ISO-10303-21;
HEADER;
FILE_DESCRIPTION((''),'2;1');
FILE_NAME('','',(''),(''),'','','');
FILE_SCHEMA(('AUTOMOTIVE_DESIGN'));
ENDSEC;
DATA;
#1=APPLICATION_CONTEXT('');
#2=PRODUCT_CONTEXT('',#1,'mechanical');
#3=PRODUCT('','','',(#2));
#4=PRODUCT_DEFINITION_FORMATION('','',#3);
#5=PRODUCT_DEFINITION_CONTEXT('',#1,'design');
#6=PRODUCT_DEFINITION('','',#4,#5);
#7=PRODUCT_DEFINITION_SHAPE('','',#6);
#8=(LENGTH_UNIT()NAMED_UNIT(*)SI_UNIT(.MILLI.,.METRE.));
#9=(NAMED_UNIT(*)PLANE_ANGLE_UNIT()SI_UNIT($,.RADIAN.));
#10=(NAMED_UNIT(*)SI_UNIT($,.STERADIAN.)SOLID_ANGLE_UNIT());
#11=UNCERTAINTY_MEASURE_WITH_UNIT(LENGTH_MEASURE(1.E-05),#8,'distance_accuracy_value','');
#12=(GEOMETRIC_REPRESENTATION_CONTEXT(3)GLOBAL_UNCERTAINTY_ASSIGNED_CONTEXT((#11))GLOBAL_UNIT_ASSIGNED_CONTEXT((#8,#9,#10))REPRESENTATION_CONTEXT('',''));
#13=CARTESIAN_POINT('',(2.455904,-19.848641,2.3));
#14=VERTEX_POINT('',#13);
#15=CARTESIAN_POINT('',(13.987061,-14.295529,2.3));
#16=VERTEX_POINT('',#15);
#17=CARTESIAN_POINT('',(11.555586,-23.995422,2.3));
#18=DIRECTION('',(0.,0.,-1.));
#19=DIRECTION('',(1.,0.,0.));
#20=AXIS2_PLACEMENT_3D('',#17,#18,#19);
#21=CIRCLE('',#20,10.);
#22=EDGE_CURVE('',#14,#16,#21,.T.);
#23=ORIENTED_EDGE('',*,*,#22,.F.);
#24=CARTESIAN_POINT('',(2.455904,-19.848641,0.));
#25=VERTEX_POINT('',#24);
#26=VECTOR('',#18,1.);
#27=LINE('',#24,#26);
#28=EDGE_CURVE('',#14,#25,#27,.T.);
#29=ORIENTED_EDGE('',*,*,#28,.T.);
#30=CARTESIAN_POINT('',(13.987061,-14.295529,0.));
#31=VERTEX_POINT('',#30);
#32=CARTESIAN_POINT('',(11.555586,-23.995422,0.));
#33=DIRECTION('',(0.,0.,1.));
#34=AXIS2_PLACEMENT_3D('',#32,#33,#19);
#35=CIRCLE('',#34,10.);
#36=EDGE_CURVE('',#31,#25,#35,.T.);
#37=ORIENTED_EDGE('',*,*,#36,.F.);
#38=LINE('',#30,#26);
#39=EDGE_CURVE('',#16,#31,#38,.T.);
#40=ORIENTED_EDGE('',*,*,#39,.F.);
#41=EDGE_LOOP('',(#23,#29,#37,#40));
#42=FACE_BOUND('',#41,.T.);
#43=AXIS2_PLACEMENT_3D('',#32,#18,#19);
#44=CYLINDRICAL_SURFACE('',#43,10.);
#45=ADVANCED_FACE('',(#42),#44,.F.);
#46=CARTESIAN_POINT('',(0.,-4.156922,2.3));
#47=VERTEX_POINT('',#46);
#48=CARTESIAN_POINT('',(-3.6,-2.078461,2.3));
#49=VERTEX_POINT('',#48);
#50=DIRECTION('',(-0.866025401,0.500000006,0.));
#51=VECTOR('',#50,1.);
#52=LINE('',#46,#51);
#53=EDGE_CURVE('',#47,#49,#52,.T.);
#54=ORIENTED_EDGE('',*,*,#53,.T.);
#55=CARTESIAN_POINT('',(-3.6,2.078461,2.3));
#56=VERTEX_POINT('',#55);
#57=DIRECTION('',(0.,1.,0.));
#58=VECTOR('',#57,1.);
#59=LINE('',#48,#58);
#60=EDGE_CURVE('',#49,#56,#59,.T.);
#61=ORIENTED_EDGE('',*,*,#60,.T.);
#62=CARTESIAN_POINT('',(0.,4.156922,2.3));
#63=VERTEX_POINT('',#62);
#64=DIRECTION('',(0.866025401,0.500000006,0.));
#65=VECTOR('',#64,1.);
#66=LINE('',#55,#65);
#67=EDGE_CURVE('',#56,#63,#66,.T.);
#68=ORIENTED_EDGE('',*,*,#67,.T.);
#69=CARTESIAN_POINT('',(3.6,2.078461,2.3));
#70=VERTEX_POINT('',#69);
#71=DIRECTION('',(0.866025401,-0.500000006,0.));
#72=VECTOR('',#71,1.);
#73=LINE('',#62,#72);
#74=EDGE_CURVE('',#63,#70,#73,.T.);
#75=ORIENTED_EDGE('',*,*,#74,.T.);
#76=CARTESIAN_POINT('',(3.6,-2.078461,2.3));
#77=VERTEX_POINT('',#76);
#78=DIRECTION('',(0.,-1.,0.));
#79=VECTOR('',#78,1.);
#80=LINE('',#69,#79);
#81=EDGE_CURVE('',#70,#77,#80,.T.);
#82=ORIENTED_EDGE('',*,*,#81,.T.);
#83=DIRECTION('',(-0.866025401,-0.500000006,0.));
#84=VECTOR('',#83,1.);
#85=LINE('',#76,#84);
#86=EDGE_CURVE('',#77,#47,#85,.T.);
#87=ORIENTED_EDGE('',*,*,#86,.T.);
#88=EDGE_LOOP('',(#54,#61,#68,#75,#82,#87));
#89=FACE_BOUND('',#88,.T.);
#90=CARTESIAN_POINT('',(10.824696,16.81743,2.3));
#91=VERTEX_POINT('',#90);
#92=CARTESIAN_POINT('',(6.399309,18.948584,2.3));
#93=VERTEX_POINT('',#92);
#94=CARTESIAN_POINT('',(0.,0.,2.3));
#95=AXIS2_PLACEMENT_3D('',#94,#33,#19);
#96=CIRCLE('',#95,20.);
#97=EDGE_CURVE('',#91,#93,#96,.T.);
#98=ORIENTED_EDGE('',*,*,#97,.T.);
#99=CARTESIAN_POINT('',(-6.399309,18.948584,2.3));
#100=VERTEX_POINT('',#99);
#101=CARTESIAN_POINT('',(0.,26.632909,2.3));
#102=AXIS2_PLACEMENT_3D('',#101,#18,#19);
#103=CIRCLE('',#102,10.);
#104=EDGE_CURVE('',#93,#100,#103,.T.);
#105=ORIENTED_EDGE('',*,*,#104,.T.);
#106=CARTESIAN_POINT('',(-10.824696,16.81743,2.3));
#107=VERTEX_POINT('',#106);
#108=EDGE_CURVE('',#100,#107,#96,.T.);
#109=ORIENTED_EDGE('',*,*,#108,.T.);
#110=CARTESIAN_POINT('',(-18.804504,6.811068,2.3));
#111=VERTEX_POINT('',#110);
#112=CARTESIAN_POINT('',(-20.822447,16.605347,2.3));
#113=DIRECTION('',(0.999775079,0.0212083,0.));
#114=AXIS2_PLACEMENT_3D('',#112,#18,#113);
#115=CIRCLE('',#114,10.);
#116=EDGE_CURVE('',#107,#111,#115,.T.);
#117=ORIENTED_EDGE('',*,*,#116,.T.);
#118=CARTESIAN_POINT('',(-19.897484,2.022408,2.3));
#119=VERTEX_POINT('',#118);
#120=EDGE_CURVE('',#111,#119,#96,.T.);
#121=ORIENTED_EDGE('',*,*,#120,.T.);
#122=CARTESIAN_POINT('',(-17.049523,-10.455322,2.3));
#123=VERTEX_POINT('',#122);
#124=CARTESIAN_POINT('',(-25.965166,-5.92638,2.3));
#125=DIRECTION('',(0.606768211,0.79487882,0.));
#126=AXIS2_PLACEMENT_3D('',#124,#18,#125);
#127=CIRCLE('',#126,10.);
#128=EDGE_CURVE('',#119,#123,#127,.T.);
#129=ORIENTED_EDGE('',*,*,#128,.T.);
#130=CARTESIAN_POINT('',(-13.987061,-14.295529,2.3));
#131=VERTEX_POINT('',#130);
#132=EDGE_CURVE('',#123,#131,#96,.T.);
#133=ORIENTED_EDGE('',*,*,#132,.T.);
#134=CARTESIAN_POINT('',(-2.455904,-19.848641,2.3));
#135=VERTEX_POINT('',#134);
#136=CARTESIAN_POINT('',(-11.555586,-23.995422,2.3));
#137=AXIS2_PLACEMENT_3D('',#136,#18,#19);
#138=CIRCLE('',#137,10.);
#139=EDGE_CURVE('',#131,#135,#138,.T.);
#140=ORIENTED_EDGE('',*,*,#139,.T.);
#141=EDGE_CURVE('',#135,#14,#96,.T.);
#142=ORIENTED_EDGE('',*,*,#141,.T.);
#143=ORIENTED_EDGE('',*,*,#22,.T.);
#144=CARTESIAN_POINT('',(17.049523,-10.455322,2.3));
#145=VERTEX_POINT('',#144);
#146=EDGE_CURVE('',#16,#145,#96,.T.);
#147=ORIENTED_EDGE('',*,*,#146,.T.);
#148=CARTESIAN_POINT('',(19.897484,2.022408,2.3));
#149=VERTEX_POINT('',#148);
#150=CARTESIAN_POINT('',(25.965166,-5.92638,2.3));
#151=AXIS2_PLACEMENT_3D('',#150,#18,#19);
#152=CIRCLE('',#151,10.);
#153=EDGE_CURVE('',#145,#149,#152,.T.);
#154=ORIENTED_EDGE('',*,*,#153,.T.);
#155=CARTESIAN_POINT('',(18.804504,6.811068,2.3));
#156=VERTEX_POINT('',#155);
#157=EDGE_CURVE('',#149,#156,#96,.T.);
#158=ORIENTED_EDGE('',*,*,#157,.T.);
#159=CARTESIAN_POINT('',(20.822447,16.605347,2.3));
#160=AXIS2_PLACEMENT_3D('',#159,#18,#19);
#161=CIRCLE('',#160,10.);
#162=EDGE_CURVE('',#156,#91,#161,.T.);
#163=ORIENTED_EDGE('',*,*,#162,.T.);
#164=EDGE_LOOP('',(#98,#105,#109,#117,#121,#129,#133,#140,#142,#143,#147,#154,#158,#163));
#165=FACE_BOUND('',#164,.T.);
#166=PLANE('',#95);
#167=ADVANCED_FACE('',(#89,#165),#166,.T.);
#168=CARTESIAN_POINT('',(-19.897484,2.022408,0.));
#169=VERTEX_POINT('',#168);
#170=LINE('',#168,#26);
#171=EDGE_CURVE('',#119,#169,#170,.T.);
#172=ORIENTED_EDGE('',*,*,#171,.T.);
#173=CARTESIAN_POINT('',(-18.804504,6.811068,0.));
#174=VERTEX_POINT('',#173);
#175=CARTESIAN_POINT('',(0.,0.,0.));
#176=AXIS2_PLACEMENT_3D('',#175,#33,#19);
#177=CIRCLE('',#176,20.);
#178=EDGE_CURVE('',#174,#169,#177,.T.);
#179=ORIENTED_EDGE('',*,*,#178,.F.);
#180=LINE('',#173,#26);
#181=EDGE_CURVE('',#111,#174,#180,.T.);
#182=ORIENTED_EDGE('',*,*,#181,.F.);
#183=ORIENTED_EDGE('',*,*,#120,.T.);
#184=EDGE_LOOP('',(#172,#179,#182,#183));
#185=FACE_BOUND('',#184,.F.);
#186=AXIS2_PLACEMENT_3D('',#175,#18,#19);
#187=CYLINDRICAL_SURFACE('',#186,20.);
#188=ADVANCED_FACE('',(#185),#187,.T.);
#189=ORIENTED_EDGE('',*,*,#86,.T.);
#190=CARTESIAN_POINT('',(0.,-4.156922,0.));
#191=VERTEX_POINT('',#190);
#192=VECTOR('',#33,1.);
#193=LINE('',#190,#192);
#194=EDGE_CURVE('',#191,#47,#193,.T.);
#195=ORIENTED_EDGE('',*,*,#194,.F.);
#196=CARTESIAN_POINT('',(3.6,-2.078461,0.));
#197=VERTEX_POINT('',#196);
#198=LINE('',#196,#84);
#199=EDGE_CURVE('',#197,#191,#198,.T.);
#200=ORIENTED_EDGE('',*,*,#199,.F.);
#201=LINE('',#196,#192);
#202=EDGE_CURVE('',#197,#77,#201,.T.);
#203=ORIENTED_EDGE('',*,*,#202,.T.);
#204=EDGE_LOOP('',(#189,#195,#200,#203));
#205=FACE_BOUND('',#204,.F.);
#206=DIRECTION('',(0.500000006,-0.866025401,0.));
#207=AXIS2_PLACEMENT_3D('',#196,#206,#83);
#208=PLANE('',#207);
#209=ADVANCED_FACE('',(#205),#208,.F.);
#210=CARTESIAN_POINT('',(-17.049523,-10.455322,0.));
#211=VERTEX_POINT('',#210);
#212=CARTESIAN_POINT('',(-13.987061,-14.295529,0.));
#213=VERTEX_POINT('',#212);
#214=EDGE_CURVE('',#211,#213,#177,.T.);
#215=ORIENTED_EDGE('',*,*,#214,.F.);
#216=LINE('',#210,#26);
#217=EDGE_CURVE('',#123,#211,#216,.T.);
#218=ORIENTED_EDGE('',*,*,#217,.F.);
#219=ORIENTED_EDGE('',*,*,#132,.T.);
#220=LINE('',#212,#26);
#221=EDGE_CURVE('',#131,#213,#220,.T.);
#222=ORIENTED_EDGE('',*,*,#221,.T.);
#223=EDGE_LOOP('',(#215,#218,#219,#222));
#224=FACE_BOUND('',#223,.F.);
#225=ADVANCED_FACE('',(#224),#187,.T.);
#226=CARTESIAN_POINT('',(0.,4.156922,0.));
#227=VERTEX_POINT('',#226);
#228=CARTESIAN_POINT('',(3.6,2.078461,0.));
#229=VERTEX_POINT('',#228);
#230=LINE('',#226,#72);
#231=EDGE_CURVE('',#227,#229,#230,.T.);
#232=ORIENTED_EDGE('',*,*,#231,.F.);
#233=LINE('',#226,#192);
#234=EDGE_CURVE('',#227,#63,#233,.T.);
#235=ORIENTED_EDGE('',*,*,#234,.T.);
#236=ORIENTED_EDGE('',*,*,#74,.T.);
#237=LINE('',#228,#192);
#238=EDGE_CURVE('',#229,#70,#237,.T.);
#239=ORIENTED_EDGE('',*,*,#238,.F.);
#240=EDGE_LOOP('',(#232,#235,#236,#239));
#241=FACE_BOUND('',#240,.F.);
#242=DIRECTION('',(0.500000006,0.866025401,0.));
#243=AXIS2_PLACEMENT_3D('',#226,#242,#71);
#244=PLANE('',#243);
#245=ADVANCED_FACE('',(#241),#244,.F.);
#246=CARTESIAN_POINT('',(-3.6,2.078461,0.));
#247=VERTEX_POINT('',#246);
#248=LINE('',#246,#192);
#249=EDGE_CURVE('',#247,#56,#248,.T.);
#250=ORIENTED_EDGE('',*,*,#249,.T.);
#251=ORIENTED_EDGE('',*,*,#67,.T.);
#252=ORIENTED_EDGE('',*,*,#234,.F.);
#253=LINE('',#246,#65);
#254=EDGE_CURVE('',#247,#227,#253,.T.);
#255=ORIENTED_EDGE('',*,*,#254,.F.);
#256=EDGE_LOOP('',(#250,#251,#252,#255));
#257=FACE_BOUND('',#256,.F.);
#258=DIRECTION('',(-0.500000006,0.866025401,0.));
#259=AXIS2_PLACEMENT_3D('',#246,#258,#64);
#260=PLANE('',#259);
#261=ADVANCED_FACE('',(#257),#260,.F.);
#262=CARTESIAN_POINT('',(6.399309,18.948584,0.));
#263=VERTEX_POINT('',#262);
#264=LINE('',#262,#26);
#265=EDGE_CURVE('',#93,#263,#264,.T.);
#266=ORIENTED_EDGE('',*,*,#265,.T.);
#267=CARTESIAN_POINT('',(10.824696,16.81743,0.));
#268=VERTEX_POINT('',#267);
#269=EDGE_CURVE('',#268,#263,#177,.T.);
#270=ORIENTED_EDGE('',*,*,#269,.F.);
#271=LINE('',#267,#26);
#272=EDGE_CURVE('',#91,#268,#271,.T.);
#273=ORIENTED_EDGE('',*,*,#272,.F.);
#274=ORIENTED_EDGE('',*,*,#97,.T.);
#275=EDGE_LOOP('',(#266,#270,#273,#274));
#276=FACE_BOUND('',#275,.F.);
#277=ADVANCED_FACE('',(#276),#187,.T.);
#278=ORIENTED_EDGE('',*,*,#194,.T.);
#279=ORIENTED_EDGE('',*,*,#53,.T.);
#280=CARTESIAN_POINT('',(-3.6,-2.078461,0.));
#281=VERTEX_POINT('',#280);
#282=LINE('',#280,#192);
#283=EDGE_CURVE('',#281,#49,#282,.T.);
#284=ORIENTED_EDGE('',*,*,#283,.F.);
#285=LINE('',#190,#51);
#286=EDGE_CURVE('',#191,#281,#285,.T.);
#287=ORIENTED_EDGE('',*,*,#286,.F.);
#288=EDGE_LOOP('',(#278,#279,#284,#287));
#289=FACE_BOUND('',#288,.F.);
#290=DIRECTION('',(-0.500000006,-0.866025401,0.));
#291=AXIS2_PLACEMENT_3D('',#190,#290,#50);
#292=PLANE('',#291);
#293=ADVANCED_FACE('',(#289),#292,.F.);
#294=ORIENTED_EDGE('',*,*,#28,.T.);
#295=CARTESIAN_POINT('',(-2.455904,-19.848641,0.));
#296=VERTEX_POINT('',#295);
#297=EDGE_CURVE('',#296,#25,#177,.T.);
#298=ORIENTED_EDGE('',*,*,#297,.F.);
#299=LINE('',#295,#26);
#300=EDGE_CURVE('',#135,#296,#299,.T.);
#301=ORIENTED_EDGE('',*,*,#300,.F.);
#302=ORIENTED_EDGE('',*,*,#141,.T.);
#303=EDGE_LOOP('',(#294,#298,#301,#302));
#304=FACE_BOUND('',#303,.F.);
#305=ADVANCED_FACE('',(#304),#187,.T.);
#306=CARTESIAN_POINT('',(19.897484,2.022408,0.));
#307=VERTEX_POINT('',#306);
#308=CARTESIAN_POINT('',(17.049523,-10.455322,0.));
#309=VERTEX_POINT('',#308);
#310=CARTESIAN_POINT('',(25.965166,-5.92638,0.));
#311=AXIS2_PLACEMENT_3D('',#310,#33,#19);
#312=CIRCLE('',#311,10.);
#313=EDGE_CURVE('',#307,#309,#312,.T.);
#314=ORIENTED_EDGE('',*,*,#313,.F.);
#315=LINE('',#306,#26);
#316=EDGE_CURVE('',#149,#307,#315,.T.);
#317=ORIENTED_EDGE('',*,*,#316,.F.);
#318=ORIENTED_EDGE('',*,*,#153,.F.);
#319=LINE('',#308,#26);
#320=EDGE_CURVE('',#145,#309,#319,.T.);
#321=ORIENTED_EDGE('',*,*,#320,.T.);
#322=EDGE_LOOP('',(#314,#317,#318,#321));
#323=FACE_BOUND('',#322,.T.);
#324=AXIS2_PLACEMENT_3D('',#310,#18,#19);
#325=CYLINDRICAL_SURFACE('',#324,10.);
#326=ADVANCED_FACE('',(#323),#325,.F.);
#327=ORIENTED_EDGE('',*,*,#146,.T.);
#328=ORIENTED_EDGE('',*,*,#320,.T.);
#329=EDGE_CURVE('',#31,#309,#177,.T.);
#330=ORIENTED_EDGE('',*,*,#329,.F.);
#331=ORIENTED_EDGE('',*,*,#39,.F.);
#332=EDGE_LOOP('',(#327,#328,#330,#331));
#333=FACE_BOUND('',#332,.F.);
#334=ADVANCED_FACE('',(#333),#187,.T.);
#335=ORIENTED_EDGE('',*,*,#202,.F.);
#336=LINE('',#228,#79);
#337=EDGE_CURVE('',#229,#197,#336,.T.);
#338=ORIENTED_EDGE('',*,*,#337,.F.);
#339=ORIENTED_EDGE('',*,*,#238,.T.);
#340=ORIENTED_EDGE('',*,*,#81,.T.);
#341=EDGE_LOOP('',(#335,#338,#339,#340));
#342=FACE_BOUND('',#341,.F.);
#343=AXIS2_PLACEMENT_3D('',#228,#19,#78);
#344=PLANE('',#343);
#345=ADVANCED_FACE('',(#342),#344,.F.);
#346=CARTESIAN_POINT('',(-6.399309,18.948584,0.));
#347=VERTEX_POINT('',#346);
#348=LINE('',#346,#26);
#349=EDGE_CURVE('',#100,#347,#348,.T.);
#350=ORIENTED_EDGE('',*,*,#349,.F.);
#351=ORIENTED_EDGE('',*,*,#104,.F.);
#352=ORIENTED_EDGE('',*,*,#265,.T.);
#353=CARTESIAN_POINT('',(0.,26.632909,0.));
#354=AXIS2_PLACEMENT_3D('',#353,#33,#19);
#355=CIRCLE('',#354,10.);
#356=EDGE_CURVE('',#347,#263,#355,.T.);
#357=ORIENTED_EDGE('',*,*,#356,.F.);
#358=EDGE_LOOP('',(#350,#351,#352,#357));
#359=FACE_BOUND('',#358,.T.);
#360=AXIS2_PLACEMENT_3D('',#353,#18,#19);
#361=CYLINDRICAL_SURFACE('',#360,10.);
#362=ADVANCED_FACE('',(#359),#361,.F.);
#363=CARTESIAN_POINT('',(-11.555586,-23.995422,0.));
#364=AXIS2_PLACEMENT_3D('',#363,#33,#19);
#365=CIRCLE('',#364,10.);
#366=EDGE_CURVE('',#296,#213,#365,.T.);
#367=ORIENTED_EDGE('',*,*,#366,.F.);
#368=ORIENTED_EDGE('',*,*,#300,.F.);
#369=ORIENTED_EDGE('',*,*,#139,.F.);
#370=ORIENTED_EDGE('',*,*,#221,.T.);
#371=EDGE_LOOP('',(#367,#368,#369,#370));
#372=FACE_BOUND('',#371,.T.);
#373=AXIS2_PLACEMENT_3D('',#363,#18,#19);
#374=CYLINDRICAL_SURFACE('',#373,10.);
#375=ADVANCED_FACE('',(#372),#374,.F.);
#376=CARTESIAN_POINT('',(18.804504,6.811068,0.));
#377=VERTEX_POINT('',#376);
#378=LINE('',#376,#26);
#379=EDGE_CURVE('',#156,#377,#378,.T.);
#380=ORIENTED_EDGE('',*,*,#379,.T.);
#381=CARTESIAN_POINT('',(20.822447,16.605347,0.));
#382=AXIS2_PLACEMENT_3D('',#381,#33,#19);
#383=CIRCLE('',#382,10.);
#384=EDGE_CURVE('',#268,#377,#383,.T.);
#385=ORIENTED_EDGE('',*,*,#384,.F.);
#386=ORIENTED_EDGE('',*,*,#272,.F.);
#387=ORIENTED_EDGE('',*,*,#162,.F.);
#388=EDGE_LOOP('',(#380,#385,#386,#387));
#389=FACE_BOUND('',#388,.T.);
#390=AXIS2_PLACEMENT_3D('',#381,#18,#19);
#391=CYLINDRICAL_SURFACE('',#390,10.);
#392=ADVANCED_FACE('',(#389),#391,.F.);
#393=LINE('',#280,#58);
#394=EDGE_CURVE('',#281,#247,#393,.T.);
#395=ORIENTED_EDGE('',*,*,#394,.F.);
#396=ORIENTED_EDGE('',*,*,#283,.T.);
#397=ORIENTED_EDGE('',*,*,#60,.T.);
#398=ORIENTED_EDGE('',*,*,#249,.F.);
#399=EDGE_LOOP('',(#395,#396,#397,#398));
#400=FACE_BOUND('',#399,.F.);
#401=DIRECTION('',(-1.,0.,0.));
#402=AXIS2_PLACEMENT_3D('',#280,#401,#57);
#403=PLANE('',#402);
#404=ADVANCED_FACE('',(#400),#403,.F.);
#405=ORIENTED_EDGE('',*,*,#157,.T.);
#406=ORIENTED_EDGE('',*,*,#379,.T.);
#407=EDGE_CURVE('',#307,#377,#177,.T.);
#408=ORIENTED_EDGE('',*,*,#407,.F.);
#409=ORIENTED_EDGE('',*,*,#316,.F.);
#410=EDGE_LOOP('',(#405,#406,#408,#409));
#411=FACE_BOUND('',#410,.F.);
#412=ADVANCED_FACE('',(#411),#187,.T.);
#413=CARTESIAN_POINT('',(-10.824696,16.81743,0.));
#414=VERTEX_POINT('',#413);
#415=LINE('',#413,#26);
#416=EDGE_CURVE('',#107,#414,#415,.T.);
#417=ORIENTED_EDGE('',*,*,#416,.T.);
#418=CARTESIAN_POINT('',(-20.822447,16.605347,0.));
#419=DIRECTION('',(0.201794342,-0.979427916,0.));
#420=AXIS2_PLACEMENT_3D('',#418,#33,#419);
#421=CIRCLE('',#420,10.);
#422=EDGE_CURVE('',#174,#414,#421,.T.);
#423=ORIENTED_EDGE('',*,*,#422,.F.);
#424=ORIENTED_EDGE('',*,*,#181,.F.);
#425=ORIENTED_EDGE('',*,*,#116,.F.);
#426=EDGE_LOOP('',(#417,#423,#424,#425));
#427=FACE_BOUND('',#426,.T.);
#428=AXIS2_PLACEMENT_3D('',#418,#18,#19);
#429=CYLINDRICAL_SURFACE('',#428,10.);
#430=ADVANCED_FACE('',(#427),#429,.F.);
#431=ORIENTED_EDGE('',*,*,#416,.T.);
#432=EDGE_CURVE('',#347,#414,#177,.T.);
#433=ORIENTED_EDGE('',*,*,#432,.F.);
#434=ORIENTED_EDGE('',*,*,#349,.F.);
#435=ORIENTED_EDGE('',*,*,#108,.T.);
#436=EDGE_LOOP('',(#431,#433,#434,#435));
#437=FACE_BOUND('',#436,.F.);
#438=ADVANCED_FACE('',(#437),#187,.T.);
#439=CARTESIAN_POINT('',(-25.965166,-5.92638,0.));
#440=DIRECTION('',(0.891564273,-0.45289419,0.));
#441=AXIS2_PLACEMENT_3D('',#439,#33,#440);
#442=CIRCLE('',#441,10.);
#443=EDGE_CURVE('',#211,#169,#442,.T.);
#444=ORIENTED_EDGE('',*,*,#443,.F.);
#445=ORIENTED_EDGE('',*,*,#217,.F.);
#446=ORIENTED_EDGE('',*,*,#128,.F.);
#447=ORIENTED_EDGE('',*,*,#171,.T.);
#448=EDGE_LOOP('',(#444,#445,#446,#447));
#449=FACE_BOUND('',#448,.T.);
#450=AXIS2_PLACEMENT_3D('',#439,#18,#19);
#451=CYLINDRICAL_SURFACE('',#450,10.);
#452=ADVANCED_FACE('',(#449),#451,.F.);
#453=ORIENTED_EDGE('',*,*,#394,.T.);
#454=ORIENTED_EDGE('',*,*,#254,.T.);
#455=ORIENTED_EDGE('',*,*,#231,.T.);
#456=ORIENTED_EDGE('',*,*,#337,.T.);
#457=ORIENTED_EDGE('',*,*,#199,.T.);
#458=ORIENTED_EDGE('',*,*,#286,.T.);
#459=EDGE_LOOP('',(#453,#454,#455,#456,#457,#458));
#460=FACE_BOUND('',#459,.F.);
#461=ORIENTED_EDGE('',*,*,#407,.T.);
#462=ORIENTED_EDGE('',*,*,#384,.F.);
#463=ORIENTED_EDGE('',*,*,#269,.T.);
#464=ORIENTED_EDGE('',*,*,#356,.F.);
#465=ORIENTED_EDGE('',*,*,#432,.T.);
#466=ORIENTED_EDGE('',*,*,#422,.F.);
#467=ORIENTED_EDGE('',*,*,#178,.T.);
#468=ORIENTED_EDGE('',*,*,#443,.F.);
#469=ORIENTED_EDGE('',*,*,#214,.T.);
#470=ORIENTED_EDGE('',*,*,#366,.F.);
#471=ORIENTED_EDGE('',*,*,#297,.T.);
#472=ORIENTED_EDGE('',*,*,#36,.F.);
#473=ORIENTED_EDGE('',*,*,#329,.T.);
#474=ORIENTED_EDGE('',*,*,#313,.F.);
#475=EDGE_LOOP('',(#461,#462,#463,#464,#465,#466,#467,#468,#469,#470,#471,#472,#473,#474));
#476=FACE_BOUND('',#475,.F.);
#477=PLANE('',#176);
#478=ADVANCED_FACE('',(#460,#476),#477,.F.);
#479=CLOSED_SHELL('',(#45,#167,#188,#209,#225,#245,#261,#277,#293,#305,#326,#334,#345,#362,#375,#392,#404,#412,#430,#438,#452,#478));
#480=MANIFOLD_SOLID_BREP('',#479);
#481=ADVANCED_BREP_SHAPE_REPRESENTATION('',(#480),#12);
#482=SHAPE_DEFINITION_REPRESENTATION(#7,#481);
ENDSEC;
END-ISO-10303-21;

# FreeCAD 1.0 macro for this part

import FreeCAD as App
import Part
import Sketcher
Q = App.Units.Quantity


def add_polygon(sketch, points):
    """Adds a closed chain of lines whose ends are joined by coincident constraints."""
    first, n = sketch.GeometryCount, len(points)
    for a, b in zip(points, points[1:] + points[:1]):
        sketch.addGeometry(Part.LineSegment(App.Vector(*a, 0), App.Vector(*b, 0)), False)
    for i in range(n):
        sketch.addConstraint(Sketcher.Constraint("Coincident", first + i, 2, first + (i + 1) % n, 1))

doc = App.newDocument("Part")
params = doc.addObject("Spreadsheet::Sheet", "Params")
for row, (alias, value) in enumerate([
    ("sketch1_diameter", "40 mm"),
    ("pad1_length", "2.3 mm"),
    ("sketch2_diameter", "20 mm"),
], start=1):
    params.set(f"A{row}", alias)
    params.set(f"B{row}", "=" + value)
    params.setAlias(f"B{row}", alias)

body = doc.addObject("PartDesign::Body", "Body")

sketch1 = body.newObject("Sketcher::SketchObject", "Sketch")
sketch1.AttachmentSupport = (doc.getObject("XY_Plane"), [""])
sketch1.MapMode = "FlatFace"
sketch1.addGeometry(Part.Circle(App.Vector(0, 0, 0), App.Vector(0, 0, 1), 20), False)
add_polygon(sketch1, [(-3.6, 2.1), (0, 4.2), (3.6, 2.1), (3.6, -2.1), (0, -4.2), (-3.6, -2.1)])
sketch1.addConstraint([
    Sketcher.Constraint("Vertical", 3),
    Sketcher.Constraint("Vertical", 6),
    Sketcher.Constraint("Coincident", 0, 3, -1, 1),
    Sketcher.Constraint("Symmetric", 1, 2, 4, 2, -1, 1),
    Sketcher.Constraint("Symmetric", 2, 2, 5, 2, -1, 1),
    Sketcher.Constraint("PointOnObject", 1, 2, -2),
    Sketcher.Constraint("Parallel", 1, 4),
    Sketcher.Constraint("Horizontal", 3, 2, 5, 2),
    Sketcher.Constraint("Diameter", 0, Q("40 mm")),
    Sketcher.Constraint("Angle", 1, Q("30 deg")),
    Sketcher.Constraint("DistanceX", -1, 1, 2, 2, Q("3.6 mm")),
    Sketcher.Constraint("DistanceY", 3, 2, 3, 1, Q("4.156922 mm")),
])
sketch1.setExpression("Constraints[14]", "Params.sketch1_diameter")
pad1 = body.newObject("PartDesign::Pad", "Pad")
pad1.Profile = sketch1
pad1.setExpression("Length", "Params.pad1_length")

sketch2 = body.newObject("Sketcher::SketchObject", "Sketch001")
sketch2.AttachmentSupport = (doc.getObject("XY_Plane"), [""])
sketch2.MapMode = "FlatFace"
sketch2.addGeometry([
    Part.Circle(App.Vector(0, 27, 0), App.Vector(0, 0, 1), 10),
    Part.Circle(App.Vector(-21, 17, 0), App.Vector(0, 0, 1), 10),
    Part.Circle(App.Vector(-26, -6, 0), App.Vector(0, 0, 1), 10),
    Part.Circle(App.Vector(-12, -24, 0), App.Vector(0, 0, 1), 10),
    Part.Circle(App.Vector(12, -24, 0), App.Vector(0, 0, 1), 10),
    Part.Circle(App.Vector(26, -6, 0), App.Vector(0, 0, 1), 10),
    Part.Circle(App.Vector(21, 17, 0), App.Vector(0, 0, 1), 10),
], False)
sketch2.addConstraint([
    Sketcher.Constraint("Equal", 0, 1),
    Sketcher.Constraint("Equal", 1, 2),
    Sketcher.Constraint("Equal", 2, 3),
    Sketcher.Constraint("Equal", 3, 4),
    Sketcher.Constraint("Equal", 4, 5),
    Sketcher.Constraint("Equal", 5, 6),
    Sketcher.Constraint("Symmetric", 3, 3, 4, 3, -2),
    Sketcher.Constraint("Symmetric", 2, 3, 5, 3, -2),
    Sketcher.Constraint("Symmetric", 1, 3, 6, 3, -2),
    Sketcher.Constraint("PointOnObject", 0, 3, -2),
    Sketcher.Constraint("Diameter", 0, Q("20 mm")),
    Sketcher.Constraint("DistanceY", -1, 1, 0, 3, Q("26.632909 mm")),
    Sketcher.Constraint("DistanceY", 2, 3, -1, 1, Q("5.92638 mm")),
    Sketcher.Constraint("DistanceX", 2, 3, 1, 3, Q("5.142719 mm")),
    Sketcher.Constraint("DistanceX", 2, 3, 3, 3, Q("14.40958 mm")),
    Sketcher.Constraint("DistanceY", 3, 3, 1, 3, Q("40.600769 mm")),
    Sketcher.Constraint("DistanceY", 3, 3, 0, 3, Q("50.628331 mm")),
    Sketcher.Constraint("DistanceX", 3, 3, 4, 3, Q("23.111172 mm")),
])
sketch2.setExpression("Constraints[10]", "Params.sketch2_diameter")
pocket1 = body.newObject("PartDesign::Pocket", "Pocket")
pocket1.Profile = sketch2
pocket1.Type = "ThroughAll"
pocket1.Reversed = True

doc.recompute()
